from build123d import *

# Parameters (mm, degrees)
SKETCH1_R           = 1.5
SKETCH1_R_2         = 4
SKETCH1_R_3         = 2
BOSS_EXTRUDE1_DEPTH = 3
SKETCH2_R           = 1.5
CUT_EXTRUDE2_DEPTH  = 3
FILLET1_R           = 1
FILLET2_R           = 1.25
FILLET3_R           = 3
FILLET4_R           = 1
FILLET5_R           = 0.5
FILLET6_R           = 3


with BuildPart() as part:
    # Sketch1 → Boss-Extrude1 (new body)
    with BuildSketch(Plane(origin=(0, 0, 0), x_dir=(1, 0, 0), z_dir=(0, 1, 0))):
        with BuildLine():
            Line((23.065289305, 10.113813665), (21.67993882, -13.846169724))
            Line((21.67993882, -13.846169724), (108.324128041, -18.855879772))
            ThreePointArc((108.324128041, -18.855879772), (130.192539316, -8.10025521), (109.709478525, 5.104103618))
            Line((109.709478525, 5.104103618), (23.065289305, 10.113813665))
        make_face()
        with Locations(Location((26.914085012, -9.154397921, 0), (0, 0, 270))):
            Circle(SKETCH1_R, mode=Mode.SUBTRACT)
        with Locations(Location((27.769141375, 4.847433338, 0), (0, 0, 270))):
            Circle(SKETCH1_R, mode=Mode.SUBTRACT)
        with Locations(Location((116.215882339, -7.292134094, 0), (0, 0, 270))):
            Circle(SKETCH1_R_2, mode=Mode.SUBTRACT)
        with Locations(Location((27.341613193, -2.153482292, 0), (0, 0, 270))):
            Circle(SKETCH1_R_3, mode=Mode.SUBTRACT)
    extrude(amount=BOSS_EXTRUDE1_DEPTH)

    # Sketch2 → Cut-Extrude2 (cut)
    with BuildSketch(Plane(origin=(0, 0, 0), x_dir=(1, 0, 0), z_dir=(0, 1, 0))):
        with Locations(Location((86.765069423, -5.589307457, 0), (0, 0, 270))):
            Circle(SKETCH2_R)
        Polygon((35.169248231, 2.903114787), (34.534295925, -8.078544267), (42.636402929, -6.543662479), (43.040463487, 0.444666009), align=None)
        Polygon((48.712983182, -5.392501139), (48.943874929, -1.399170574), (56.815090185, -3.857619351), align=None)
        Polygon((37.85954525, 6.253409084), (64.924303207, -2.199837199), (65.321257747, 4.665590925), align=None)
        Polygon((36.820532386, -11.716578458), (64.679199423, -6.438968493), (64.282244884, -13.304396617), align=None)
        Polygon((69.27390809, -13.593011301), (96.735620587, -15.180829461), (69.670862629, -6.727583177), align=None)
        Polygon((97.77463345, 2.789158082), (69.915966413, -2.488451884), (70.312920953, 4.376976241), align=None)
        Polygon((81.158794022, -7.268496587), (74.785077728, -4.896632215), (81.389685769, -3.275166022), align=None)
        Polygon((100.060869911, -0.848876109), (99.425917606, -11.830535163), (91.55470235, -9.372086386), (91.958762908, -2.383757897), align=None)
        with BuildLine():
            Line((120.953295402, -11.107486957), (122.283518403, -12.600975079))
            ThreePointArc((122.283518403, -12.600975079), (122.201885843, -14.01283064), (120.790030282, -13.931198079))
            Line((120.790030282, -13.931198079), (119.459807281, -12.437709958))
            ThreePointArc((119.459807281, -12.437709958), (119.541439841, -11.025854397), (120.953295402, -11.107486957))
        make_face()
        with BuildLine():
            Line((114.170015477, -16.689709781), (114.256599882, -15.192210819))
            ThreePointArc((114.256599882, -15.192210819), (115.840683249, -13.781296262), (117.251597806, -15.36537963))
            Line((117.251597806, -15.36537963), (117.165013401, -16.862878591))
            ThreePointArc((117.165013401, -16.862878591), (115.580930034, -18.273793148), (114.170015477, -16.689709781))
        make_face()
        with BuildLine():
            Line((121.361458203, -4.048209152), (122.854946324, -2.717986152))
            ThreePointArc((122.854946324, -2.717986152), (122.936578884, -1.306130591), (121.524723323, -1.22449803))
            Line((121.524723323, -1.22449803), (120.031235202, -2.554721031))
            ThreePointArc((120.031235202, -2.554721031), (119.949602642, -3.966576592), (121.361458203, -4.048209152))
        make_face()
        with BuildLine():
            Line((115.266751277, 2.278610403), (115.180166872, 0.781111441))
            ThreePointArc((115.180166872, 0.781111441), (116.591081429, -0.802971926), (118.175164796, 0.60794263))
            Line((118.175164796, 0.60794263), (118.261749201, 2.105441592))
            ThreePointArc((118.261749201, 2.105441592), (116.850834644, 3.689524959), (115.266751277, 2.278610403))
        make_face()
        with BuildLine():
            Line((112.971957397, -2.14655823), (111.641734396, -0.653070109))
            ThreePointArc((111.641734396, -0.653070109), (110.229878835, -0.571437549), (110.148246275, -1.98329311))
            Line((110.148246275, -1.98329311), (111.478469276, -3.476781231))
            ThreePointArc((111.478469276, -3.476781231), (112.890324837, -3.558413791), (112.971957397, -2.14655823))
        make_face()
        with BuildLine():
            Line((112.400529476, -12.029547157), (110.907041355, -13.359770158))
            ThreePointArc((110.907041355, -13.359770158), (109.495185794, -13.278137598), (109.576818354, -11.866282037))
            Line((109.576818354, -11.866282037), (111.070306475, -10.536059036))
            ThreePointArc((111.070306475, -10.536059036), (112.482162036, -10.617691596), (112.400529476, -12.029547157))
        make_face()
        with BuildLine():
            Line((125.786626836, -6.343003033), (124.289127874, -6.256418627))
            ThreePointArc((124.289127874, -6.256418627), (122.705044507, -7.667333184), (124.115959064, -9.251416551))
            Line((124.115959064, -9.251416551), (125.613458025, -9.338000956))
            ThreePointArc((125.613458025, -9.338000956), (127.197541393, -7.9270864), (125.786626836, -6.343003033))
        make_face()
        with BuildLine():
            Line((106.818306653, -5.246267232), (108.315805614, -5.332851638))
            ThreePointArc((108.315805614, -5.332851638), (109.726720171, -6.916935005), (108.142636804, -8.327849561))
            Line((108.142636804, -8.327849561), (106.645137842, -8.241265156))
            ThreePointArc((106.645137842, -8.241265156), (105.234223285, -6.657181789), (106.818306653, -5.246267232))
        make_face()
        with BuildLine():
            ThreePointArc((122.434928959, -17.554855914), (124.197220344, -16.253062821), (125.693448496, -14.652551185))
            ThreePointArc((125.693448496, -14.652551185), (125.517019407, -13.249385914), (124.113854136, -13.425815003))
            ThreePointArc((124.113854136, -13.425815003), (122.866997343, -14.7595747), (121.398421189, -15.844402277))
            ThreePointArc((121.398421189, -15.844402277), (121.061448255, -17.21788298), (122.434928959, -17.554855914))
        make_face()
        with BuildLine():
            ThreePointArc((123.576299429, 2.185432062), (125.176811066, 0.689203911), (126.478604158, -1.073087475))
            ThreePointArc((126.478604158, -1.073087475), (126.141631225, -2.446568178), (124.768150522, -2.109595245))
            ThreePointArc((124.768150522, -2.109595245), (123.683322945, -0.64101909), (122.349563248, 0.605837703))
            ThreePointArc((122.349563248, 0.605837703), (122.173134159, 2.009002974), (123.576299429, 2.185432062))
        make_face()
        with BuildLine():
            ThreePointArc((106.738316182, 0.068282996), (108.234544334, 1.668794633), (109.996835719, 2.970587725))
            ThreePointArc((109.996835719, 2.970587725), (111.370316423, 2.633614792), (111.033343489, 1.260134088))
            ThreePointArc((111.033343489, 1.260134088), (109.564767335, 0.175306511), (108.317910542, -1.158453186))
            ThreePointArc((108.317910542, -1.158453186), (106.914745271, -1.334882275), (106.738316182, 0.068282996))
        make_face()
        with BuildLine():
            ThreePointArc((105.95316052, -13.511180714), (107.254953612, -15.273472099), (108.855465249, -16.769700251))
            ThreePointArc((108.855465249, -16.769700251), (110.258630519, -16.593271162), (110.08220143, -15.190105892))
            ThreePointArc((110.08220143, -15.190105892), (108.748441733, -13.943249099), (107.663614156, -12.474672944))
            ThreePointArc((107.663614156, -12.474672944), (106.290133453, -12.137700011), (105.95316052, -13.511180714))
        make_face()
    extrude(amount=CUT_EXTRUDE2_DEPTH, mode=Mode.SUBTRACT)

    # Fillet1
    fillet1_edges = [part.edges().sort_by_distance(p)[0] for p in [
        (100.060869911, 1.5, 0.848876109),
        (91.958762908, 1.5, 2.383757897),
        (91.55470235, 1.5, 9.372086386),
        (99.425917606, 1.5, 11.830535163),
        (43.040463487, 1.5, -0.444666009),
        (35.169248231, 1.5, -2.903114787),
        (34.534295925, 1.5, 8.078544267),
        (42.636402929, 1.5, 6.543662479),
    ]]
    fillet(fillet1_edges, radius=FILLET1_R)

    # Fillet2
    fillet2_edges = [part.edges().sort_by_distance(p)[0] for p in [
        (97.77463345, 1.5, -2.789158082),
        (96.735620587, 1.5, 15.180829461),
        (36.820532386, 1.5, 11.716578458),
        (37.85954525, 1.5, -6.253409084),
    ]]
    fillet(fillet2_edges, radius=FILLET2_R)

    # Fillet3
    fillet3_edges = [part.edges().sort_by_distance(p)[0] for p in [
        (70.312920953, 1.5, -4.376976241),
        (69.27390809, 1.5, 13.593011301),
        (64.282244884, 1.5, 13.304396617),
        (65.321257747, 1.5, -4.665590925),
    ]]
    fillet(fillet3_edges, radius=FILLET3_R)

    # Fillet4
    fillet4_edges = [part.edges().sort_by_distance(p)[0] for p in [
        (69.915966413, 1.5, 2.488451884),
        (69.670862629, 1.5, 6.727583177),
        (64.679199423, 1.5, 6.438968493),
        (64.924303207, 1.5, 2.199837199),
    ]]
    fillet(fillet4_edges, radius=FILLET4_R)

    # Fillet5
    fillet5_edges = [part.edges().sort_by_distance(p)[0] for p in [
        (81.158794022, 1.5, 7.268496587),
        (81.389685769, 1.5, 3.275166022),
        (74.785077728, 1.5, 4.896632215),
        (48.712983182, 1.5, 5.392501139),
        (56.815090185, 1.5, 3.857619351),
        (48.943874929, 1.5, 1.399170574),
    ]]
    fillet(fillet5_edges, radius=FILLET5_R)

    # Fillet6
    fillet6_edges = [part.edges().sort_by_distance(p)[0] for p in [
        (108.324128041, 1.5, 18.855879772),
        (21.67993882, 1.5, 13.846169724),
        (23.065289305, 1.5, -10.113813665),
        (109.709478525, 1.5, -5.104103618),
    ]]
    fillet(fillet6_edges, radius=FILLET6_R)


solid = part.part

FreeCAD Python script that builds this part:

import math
import FreeCAD as App
import Part
import Sketcher
from FreeCAD import Vector


def edges_at(feature, points):
    """Names of the edges that pass closest to the given points."""
    edges = feature.Shape.Edges
    near = lambda p: min(range(len(edges)), key=lambda i: edges[i].distToShape(Part.Vertex(*p))[0])
    return sorted({f"Edge{near(p) + 1}" for p in points})

doc = App.newDocument("Part")
body = doc.addObject("PartDesign::Body", "Body")

# Sketch on XZ plane
sketch1 = body.newObject("Sketcher::SketchObject", "Sketch")
sketch1.AttachmentSupport = (doc.getObject("XZ_Plane"), [""])
sketch1.MapMode = "FlatFace"
sketch1.addGeometry(Part.LineSegment(Vector(23.065289, -10.113814, 0), Vector(21.679939, 13.84617, 0)), False)
sketch1.addGeometry(Part.LineSegment(Vector(21.679939, 13.84617, 0), Vector(108.324128, 18.85588, 0)), False)
sketch1.addGeometry(Part.ArcOfCircle(Part.Circle(Vector(116.215882, 7.292134, 0), Vector(0, 0, 1), 14), math.radians(-117.693599), math.radians(124.311839)), False)
sketch1.addGeometry(Part.LineSegment(Vector(109.709479, -5.104104, 0), Vector(23.065289, -10.113814, 0)), False)
sketch1.addGeometry(Part.Circle(Vector(26.914085, 9.154398, 0), Vector(0, 0, 1), 1.5), False)
sketch1.addGeometry(Part.Circle(Vector(116.215882, 7.292134, 0), Vector(0, 0, 1), 4), False)
sketch1.addGeometry(Part.Circle(Vector(27.341613, 2.153482, 0), Vector(0, 0, 1), 2), False)
sketch1.addGeometry(Part.Circle(Vector(27.769141, -4.847433, 0), Vector(0, 0, 1), 1.5), False)
sketch1.addConstraint(Sketcher.Constraint("Coincident", 0, 2, 1, 1))
sketch1.addConstraint(Sketcher.Constraint("Coincident", 1, 2, 2, 2))
sketch1.addConstraint(Sketcher.Constraint("Coincident", 2, 1, 3, 1))
sketch1.addConstraint(Sketcher.Constraint("Coincident", 3, 2, 0, 1))
sketch1.addConstraint(Sketcher.Constraint("Coincident", 5, 3, 2, 3))
sketch1.addConstraint(Sketcher.Constraint("Equal", 4, 7))
sketch1.addConstraint(Sketcher.Constraint("Perpendicular", 0, 1))
sketch1.addConstraint(Sketcher.Constraint("Parallel", 1, 3))
sketch1.addConstraint(Sketcher.Constraint("Equal", 1, 3))
sketch1.addConstraint(Sketcher.Constraint("Diameter", 4, 3.0))
sketch1.addConstraint(Sketcher.Constraint("Diameter", 5, 8.0))
sketch1.addConstraint(Sketcher.Constraint("Diameter", 6, 4.0))
sketch1.addConstraint(Sketcher.Constraint("Radius", 2, 14.0))
sketch1.addConstraint(Sketcher.Constraint("Distance", 0, 24.0))
sketch1.addConstraint(Sketcher.Constraint("DistanceX", -1, 1, 7, 3, 27.769141))
sketch1.addConstraint(Sketcher.Constraint("DistanceX", -1, 1, 0, 2, 21.679939))
sketch1.addConstraint(Sketcher.Constraint("DistanceY", -1, 1, 0, 2, 13.84617))
sketch1.addConstraint(Sketcher.Constraint("DistanceX", -1, 1, 1, 2, 108.324128))
sketch1.addConstraint(Sketcher.Constraint("DistanceY", -1, 1, 1, 2, 18.85588))
sketch1.addConstraint(Sketcher.Constraint("DistanceX", 4, 3, 6, 3, 0.427528))
sketch1.addConstraint(Sketcher.Constraint("DistanceX", 6, 3, 2, 3, 88.874269))
sketch1.addConstraint(Sketcher.Constraint("DistanceY", 6, 3, 2, 3, 5.138652))
sketch1.addConstraint(Sketcher.Constraint("DistanceY", 7, 3, 4, 3, 14.001831))
sketch1.addConstraint(Sketcher.Constraint("DistanceY", 4, 3, 0, 2, 4.691772))
pad1 = body.newObject("PartDesign::Pad", "Pad")
pad1.Profile = sketch1
pad1.Length = 3
pad1.Reversed = True

# Sketch on XZ plane
sketch2 = body.newObject("Sketcher::SketchObject", "Sketch001")
sketch2.AttachmentSupport = (doc.getObject("XZ_Plane"), [""])
sketch2.MapMode = "FlatFace"
sketch2.addGeometry(Part.Circle(Vector(86.765069, 5.589307, 0), Vector(0, 0, 1), 1.5), False)
sketch2.addGeometry(Part.LineSegment(Vector(35.169248, -2.903115, 0), Vector(34.534296, 8.078544, 0)), False)
sketch2.addGeometry(Part.LineSegment(Vector(34.534296, 8.078544, 0), Vector(42.636403, 6.543662, 0)), False)
sketch2.addGeometry(Part.LineSegment(Vector(42.636403, 6.543662, 0), Vector(43.040463, -0.444666, 0)), False)
sketch2.addGeometry(Part.LineSegment(Vector(43.040463, -0.444666, 0), Vector(35.169248, -2.903115, 0)), False)
sketch2.addGeometry(Part.LineSegment(Vector(48.943875, 1.399171, 0), Vector(48.712983, 5.392501, 0)), False)
sketch2.addGeometry(Part.LineSegment(Vector(48.712983, 5.392501, 0), Vector(56.81509, 3.857619, 0)), False)
sketch2.addGeometry(Part.LineSegment(Vector(56.81509, 3.857619, 0), Vector(48.943875, 1.399171, 0)), False)
sketch2.addGeometry(Part.LineSegment(Vector(37.859545, -6.253409, 0), Vector(64.924303, 2.199837, 0)), False)
sketch2.addGeometry(Part.LineSegment(Vector(64.924303, 2.199837, 0), Vector(65.321258, -4.665591, 0)), False)
sketch2.addGeometry(Part.LineSegment(Vector(65.321258, -4.665591, 0), Vector(37.859545, -6.253409, 0)), False)
sketch2.addGeometry(Part.LineSegment(Vector(64.679199, 6.438968, 0), Vector(36.820532, 11.716578, 0)), False)
sketch2.addGeometry(Part.LineSegment(Vector(36.820532, 11.716578, 0), Vector(64.282245, 13.304397, 0)), False)
sketch2.addGeometry(Part.LineSegment(Vector(64.282245, 13.304397, 0), Vector(64.679199, 6.438968, 0)), False)
sketch2.addGeometry(Part.LineSegment(Vector(69.273908, 13.593011, 0), Vector(96.735621, 15.180829, 0)), False)
sketch2.addGeometry(Part.LineSegment(Vector(96.735621, 15.180829, 0), Vector(69.670863, 6.727583, 0)), False)
sketch2.addGeometry(Part.LineSegment(Vector(69.670863, 6.727583, 0), Vector(69.273908, 13.593011, 0)), False)
sketch2.addGeometry(Part.LineSegment(Vector(69.915966, 2.488452, 0), Vector(97.774633, -2.789158, 0)), False)
sketch2.addGeometry(Part.LineSegment(Vector(97.774633, -2.789158, 0), Vector(70.312921, -4.376976, 0)), False)
sketch2.addGeometry(Part.LineSegment(Vector(70.312921, -4.376976, 0), Vector(69.915966, 2.488452, 0)), False)
sketch2.addGeometry(Part.LineSegment(Vector(74.785078, 4.896632, 0), Vector(81.158794, 7.268497, 0)), False)
sketch2.addGeometry(Part.LineSegment(Vector(81.158794, 7.268497, 0), Vector(81.389686, 3.275166, 0)), False)
sketch2.addGeometry(Part.LineSegment(Vector(81.389686, 3.275166, 0), Vector(74.785078, 4.896632, 0)), False)
sketch2.addGeometry(Part.LineSegment(Vector(99.425918, 11.830535, 0), Vector(100.06087, 0.848876, 0)), False)
sketch2.addGeometry(Part.LineSegment(Vector(100.06087, 0.848876, 0), Vector(91.958763, 2.383758, 0)), False)
sketch2.addGeometry(Part.LineSegment(Vector(91.958763, 2.383758, 0), Vector(91.554702, 9.372086, 0)), False)
sketch2.addGeometry(Part.LineSegment(Vector(91.554702, 9.372086, 0), Vector(99.425918, 11.830535, 0)), False)
sketch2.addGeometry(Part.LineSegment(Vector(122.283518, 12.600975, 0), Vector(120.953295, 11.107487, 0)), False)
sketch2.addGeometry(Part.ArcOfCircle(Part.Circle(Vector(120.206551, 11.772598, 0), Vector(0, 0, 1), 1), math.radians(138.30912), math.radians(318.30912)), False)
sketch2.addGeometry(Part.LineSegment(Vector(119.459807, 12.43771, 0), Vector(120.79003, 13.931198, 0)), False)
sketch2.addGeometry(Part.ArcOfCircle(Part.Circle(Vector(121.536774, 13.266087, 0), Vector(0, 0, 1), 1), math.radians(-41.69088), math.radians(138.30912)), False)
sketch2.addGeometry(Part.LineSegment(Vector(114.2566, 15.192211, 0), Vector(114.170015, 16.68971, 0)), False)
sketch2.addGeometry(Part.ArcOfCircle(Part.Circle(Vector(115.667514, 16.776294, 0), Vector(0, 0, 1), 1.5), math.radians(3.30912), math.radians(183.30912)), False)
sketch2.addGeometry(Part.LineSegment(Vector(117.165013, 16.862879, 0), Vector(117.251598, 15.36538, 0)), False)
sketch2.addGeometry(Part.ArcOfCircle(Part.Circle(Vector(115.754099, 15.278795, 0), Vector(0, 0, 1), 1.5), math.radians(-176.69088), math.radians(3.30912)), False)
sketch2.addGeometry(Part.LineSegment(Vector(121.361458, 4.048209, 0), Vector(122.854946, 2.717986, 0)), False)
sketch2.addGeometry(Part.ArcOfCircle(Part.Circle(Vector(122.189835, 1.971242, 0), Vector(0, 0, 1), 1), math.radians(-131.69088), math.radians(48.30912)), False)
sketch2.addGeometry(Part.LineSegment(Vector(121.524723, 1.224498, 0), Vector(120.031235, 2.554721, 0)), False)
sketch2.addGeometry(Part.ArcOfCircle(Part.Circle(Vector(120.696347, 3.301465, 0), Vector(0, 0, 1), 1), math.radians(48.30912), math.radians(228.30912)), False)
sketch2.addGeometry(Part.LineSegment(Vector(115.266751, -2.27861, 0), Vector(115.180167, -0.781111, 0)), False)
sketch2.addGeometry(Part.ArcOfCircle(Part.Circle(Vector(116.677666, -0.694527, 0), Vector(0, 0, 1), 1.5), math.radians(3.30912), math.radians(183.30912)), False)
sketch2.addGeometry(Part.LineSegment(Vector(118.175165, -0.607943, 0), Vector(118.261749, -2.105442, 0)), False)
sketch2.addGeometry(Part.ArcOfCircle(Part.Circle(Vector(116.76425, -2.192026, 0), Vector(0, 0, 1), 1.5), math.radians(-176.69088), math.radians(3.30912)), False)
sketch2.addGeometry(Part.LineSegment(Vector(112.971957, 2.146558, 0), Vector(111.641734, 0.65307, 0)), False)
sketch2.addGeometry(Part.ArcOfCircle(Part.Circle(Vector(110.89499, 1.318182, 0), Vector(0, 0, 1), 1), math.radians(138.30912), math.radians(318.30912)), False)
sketch2.addGeometry(Part.LineSegment(Vector(110.148246, 1.983293, 0), Vector(111.478469, 3.476781, 0)), False)
sketch2.addGeometry(Part.ArcOfCircle(Part.Circle(Vector(112.225213, 2.81167, 0), Vector(0, 0, 1), 1), math.radians(-41.69088), math.radians(138.30912)), False)
sketch2.addGeometry(Part.LineSegment(Vector(110.907041, 13.35977, 0), Vector(112.400529, 12.029547, 0)), False)
sketch2.addGeometry(Part.ArcOfCircle(Part.Circle(Vector(111.735418, 11.282803, 0), Vector(0, 0, 1), 1), math.radians(-131.69088), math.radians(48.30912)), False)
sketch2.addGeometry(Part.LineSegment(Vector(111.070306, 10.536059, 0), Vector(109.576818, 11.866282, 0)), False)
sketch2.addGeometry(Part.ArcOfCircle(Part.Circle(Vector(110.24193, 12.613026, 0), Vector(0, 0, 1), 1), math.radians(48.30912), math.radians(228.30912)), False)
sketch2.addGeometry(Part.LineSegment(Vector(125.786627, 6.343003, 0), Vector(124.289128, 6.256419, 0)), False)
sketch2.addGeometry(Part.ArcOfCircle(Part.Circle(Vector(124.202543, 7.753918, 0), Vector(0, 0, 1), 1.5), math.radians(93.30912), math.radians(273.30912)), False)
sketch2.addGeometry(Part.LineSegment(Vector(124.115959, 9.251417, 0), Vector(125.613458, 9.338001, 0)), False)
sketch2.addGeometry(Part.ArcOfCircle(Part.Circle(Vector(125.700042, 7.840502, 0), Vector(0, 0, 1), 1.5), math.radians(-86.69088), math.radians(93.30912)), False)
sketch2.addGeometry(Part.LineSegment(Vector(108.315806, 5.332852, 0), Vector(106.818307, 5.246267, 0)), False)
sketch2.addGeometry(Part.ArcOfCircle(Part.Circle(Vector(106.731722, 6.743766, 0), Vector(0, 0, 1), 1.5), math.radians(93.30912), math.radians(273.30912)), False)
sketch2.addGeometry(Part.LineSegment(Vector(106.645138, 8.241265, 0), Vector(108.142637, 8.32785, 0)), False)
sketch2.addGeometry(Part.ArcOfCircle(Part.Circle(Vector(108.229221, 6.830351, 0), Vector(0, 0, 1), 1.5), math.radians(-86.69088), math.radians(93.30912)), False)
sketch2.addGeometry(Part.ArcOfCircle(Part.Circle(Vector(116.215882, 7.292134, 0), Vector(0, 0, 1), 12), math.radians(37.833438), math.radians(58.784802)), False)
sketch2.addGeometry(Part.ArcOfCircle(Part.Circle(Vector(124.903651, 14.039183, 0), Vector(0, 0, 1), 1), math.radians(-142.166562), math.radians(37.833438)), False)
sketch2.addGeometry(Part.ArcOfCircle(Part.Circle(Vector(116.215882, 7.292134, 0), Vector(0, 0, 1), 10), math.radians(37.833438), math.radians(58.784802)), False)
sketch2.addGeometry(Part.ArcOfCircle(Part.Circle(Vector(121.916675, 16.699629, 0), Vector(0, 0, 1), 1), math.radians(58.784802), math.radians(238.784802)), False)
sketch2.addGeometry(Part.ArcOfCircle(Part.Circle(Vector(116.215882, 7.292134, 0), Vector(0, 0, 1), 12), math.radians(-52.166562), math.radians(-31.215198)), False)
sketch2.addGeometry(Part.ArcOfCircle(Part.Circle(Vector(122.962931, -1.395635, 0), Vector(0, 0, 1), 1), math.radians(127.833438), math.radians(307.833438)), False)
sketch2.addGeometry(Part.ArcOfCircle(Part.Circle(Vector(116.215882, 7.292134, 0), Vector(0, 0, 1), 10), math.radians(-52.166562), math.radians(-31.215198)), False)
sketch2.addGeometry(Part.ArcOfCircle(Part.Circle(Vector(125.623377, 1.591341, 0), Vector(0, 0, 1), 1), math.radians(-31.215198), math.radians(148.784802)), False)
sketch2.addGeometry(Part.ArcOfCircle(Part.Circle(Vector(116.215882, 7.292134, 0), Vector(0, 0, 1), 12), math.radians(-142.166562), math.radians(-121.215198)), False)
sketch2.addGeometry(Part.ArcOfCircle(Part.Circle(Vector(107.528113, 0.545085, 0), Vector(0, 0, 1), 1), math.radians(37.833438), math.radians(217.833438)), False)
sketch2.addGeometry(Part.ArcOfCircle(Part.Circle(Vector(116.215882, 7.292134, 0), Vector(0, 0, 1), 10), math.radians(-142.166562), math.radians(-121.215198)), False)
sketch2.addGeometry(Part.ArcOfCircle(Part.Circle(Vector(110.51509, -2.115361, 0), Vector(0, 0, 1), 1), math.radians(-121.215198), math.radians(58.784802)), False)
sketch2.addGeometry(Part.ArcOfCircle(Part.Circle(Vector(116.215882, 7.292134, 0), Vector(0, 0, 1), 12), math.radians(127.833438), math.radians(148.784802)), False)
sketch2.addGeometry(Part.ArcOfCircle(Part.Circle(Vector(109.468833, 15.979903, 0), Vector(0, 0, 1), 1), math.radians(-52.166562), math.radians(127.833438)), False)
sketch2.addGeometry(Part.ArcOfCircle(Part.Circle(Vector(116.215882, 7.292134, 0), Vector(0, 0, 1), 10), math.radians(127.833438), math.radians(148.784802)), False)
sketch2.addGeometry(Part.ArcOfCircle(Part.Circle(Vector(106.808387, 12.992927, 0), Vector(0, 0, 1), 1), math.radians(148.784802), math.radians(328.784802)), False)
sketch2.addConstraint(Sketcher.Constraint("Coincident", 1, 2, 2, 1))
sketch2.addConstraint(Sketcher.Constraint("Coincident", 2, 2, 3, 1))
sketch2.addConstraint(Sketcher.Constraint("Coincident", 3, 2, 4, 1))
sketch2.addConstraint(Sketcher.Constraint("Coincident", 4, 2, 1, 1))
sketch2.addConstraint(Sketcher.Constraint("Coincident", 5, 2, 6, 1))
sketch2.addConstraint(Sketcher.Constraint("Coincident", 6, 2, 7, 1))
sketch2.addConstraint(Sketcher.Constraint("Coincident", 7, 2, 5, 1))
sketch2.addConstraint(Sketcher.Constraint("Coincident", 8, 2, 9, 1))
sketch2.addConstraint(Sketcher.Constraint("Coincident", 9, 2, 10, 1))
sketch2.addConstraint(Sketcher.Constraint("Coincident", 10, 2, 8, 1))
sketch2.addConstraint(Sketcher.Constraint("Coincident", 11, 2, 12, 1))
sketch2.addConstraint(Sketcher.Constraint("Coincident", 12, 2, 13, 1))
sketch2.addConstraint(Sketcher.Constraint("Coincident", 13, 2, 11, 1))
sketch2.addConstraint(Sketcher.Constraint("Coincident", 14, 2, 15, 1))
sketch2.addConstraint(Sketcher.Constraint("Coincident", 15, 2, 16, 1))
sketch2.addConstraint(Sketcher.Constraint("Coincident", 16, 2, 14, 1))
sketch2.addConstraint(Sketcher.Constraint("Coincident", 17, 2, 18, 1))
sketch2.addConstraint(Sketcher.Constraint("Coincident", 18, 2, 19, 1))
sketch2.addConstraint(Sketcher.Constraint("Coincident", 19, 2, 17, 1))
sketch2.addConstraint(Sketcher.Constraint("Coincident", 20, 2, 21, 1))
sketch2.addConstraint(Sketcher.Constraint("Coincident", 21, 2, 22, 1))
sketch2.addConstraint(Sketcher.Constraint("Coincident", 22, 2, 20, 1))
sketch2.addConstraint(Sketcher.Constraint("Coincident", 23, 2, 24, 1))
sketch2.addConstraint(Sketcher.Constraint("Coincident", 24, 2, 25, 1))
sketch2.addConstraint(Sketcher.Constraint("Coincident", 25, 2, 26, 1))
sketch2.addConstraint(Sketcher.Constraint("Coincident", 26, 2, 23, 1))
sketch2.addConstraint(Sketcher.Constraint("Tangent", 27, 2, 28, 2))
sketch2.addConstraint(Sketcher.Constraint("Tangent", 28, 1, 29, 1))
sketch2.addConstraint(Sketcher.Constraint("Tangent", 29, 2, 30, 2))
sketch2.addConstraint(Sketcher.Constraint("Tangent", 30, 1, 27, 1))
sketch2.addConstraint(Sketcher.Constraint("Tangent", 31, 2, 32, 2))
sketch2.addConstraint(Sketcher.Constraint("Tangent", 32, 1, 33, 1))
sketch2.addConstraint(Sketcher.Constraint("Tangent", 33, 2, 34, 2))
sketch2.addConstraint(Sketcher.Constraint("Tangent", 34, 1, 31, 1))
sketch2.addConstraint(Sketcher.Constraint("Tangent", 35, 2, 36, 2))
sketch2.addConstraint(Sketcher.Constraint("Tangent", 36, 1, 37, 1))
sketch2.addConstraint(Sketcher.Constraint("Tangent", 37, 2, 38, 2))
sketch2.addConstraint(Sketcher.Constraint("Tangent", 38, 1, 35, 1))
sketch2.addConstraint(Sketcher.Constraint("Tangent", 39, 2, 40, 2))
sketch2.addConstraint(Sketcher.Constraint("Tangent", 40, 1, 41, 1))
sketch2.addConstraint(Sketcher.Constraint("Tangent", 41, 2, 42, 2))
sketch2.addConstraint(Sketcher.Constraint("Tangent", 42, 1, 39, 1))
sketch2.addConstraint(Sketcher.Constraint("Tangent", 43, 2, 44, 2))
sketch2.addConstraint(Sketcher.Constraint("Tangent", 44, 1, 45, 1))
sketch2.addConstraint(Sketcher.Constraint("Tangent", 45, 2, 46, 2))
sketch2.addConstraint(Sketcher.Constraint("Tangent", 46, 1, 43, 1))
sketch2.addConstraint(Sketcher.Constraint("Tangent", 47, 2, 48, 2))
sketch2.addConstraint(Sketcher.Constraint("Tangent", 48, 1, 49, 1))
sketch2.addConstraint(Sketcher.Constraint("Tangent", 49, 2, 50, 2))
sketch2.addConstraint(Sketcher.Constraint("Tangent", 50, 1, 47, 1))
sketch2.addConstraint(Sketcher.Constraint("Tangent", 51, 2, 52, 2))
sketch2.addConstraint(Sketcher.Constraint("Tangent", 52, 1, 53, 1))
sketch2.addConstraint(Sketcher.Constraint("Tangent", 53, 2, 54, 2))
sketch2.addConstraint(Sketcher.Constraint("Tangent", 54, 1, 51, 1))
sketch2.addConstraint(Sketcher.Constraint("Tangent", 55, 2, 56, 2))
sketch2.addConstraint(Sketcher.Constraint("Tangent", 56, 1, 57, 1))
sketch2.addConstraint(Sketcher.Constraint("Tangent", 57, 2, 58, 2))
sketch2.addConstraint(Sketcher.Constraint("Tangent", 58, 1, 55, 1))
sketch2.addConstraint(Sketcher.Constraint("Tangent", 59, 1, 60, 2))
sketch2.addConstraint(Sketcher.Constraint("Tangent", 60, 1, 61, 1))
sketch2.addConstraint(Sketcher.Constraint("Tangent", 61, 2, 62, 2))
sketch2.addConstraint(Sketcher.Constraint("Tangent", 62, 1, 59, 2))
sketch2.addConstraint(Sketcher.Constraint("Tangent", 63, 1, 64, 2))
sketch2.addConstraint(Sketcher.Constraint("Tangent", 64, 1, 65, 1))
sketch2.addConstraint(Sketcher.Constraint("Tangent", 65, 2, 66, 2))
sketch2.addConstraint(Sketcher.Constraint("Tangent", 66, 1, 63, 2))
sketch2.addConstraint(Sketcher.Constraint("Tangent", 67, 1, 68, 2))
sketch2.addConstraint(Sketcher.Constraint("Tangent", 68, 1, 69, 1))
sketch2.addConstraint(Sketcher.Constraint("Tangent", 69, 2, 70, 2))
sketch2.addConstraint(Sketcher.Constraint("Tangent", 70, 1, 67, 2))
sketch2.addConstraint(Sketcher.Constraint("Tangent", 71, 1, 72, 2))
sketch2.addConstraint(Sketcher.Constraint("Tangent", 72, 1, 73, 1))
sketch2.addConstraint(Sketcher.Constraint("Tangent", 73, 2, 74, 2))
sketch2.addConstraint(Sketcher.Constraint("Tangent", 74, 1, 71, 2))
sketch2.addConstraint(Sketcher.Constraint("Coincident", 61, 3, 59, 3))
sketch2.addConstraint(Sketcher.Constraint("Coincident", 63, 3, 59, 3))
sketch2.addConstraint(Sketcher.Constraint("Coincident", 65, 3, 59, 3))
sketch2.addConstraint(Sketcher.Constraint("Coincident", 67, 3, 59, 3))
sketch2.addConstraint(Sketcher.Constraint("Coincident", 69, 3, 59, 3))
sketch2.addConstraint(Sketcher.Constraint("Coincident", 71, 3, 59, 3))
sketch2.addConstraint(Sketcher.Constraint("Coincident", 73, 3, 59, 3))
sketch2.addConstraint(Sketcher.Constraint("Equal", 28, 30))
sketch2.addConstraint(Sketcher.Constraint("Equal", 0, 32))
sketch2.addConstraint(Sketcher.Constraint("Equal", 32, 34))
sketch2.addConstraint(Sketcher.Constraint("Equal", 30, 36))
sketch2.addConstraint(Sketcher.Constraint("Equal", 36, 38))
sketch2.addConstraint(Sketcher.Constraint("Equal", 34, 40))
sketch2.addConstraint(Sketcher.Constraint("Equal", 40, 42))
sketch2.addConstraint(Sketcher.Constraint("Equal", 38, 44))
sketch2.addConstraint(Sketcher.Constraint("Equal", 44, 46))
sketch2.addConstraint(Sketcher.Constraint("Equal", 46, 48))
sketch2.addConstraint(Sketcher.Constraint("Equal", 48, 50))
sketch2.addConstraint(Sketcher.Constraint("Equal", 42, 52))
sketch2.addConstraint(Sketcher.Constraint("Equal", 52, 54))
sketch2.addConstraint(Sketcher.Constraint("Equal", 54, 56))
sketch2.addConstraint(Sketcher.Constraint("Equal", 56, 58))
sketch2.addConstraint(Sketcher.Constraint("Equal", 50, 60))
sketch2.addConstraint(Sketcher.Constraint("Equal", 59, 63))
sketch2.addConstraint(Sketcher.Constraint("Equal", 62, 64))
sketch2.addConstraint(Sketcher.Constraint("Equal", 63, 67))
sketch2.addConstraint(Sketcher.Constraint("Equal", 66, 68))
sketch2.addConstraint(Sketcher.Constraint("Equal", 67, 71))
sketch2.addConstraint(Sketcher.Constraint("Equal", 70, 72))
sketch2.addConstraint(Sketcher.Constraint("Parallel", 1, 3))
sketch2.addConstraint(Sketcher.Constraint("Parallel", 3, 5))
sketch2.addConstraint(Sketcher.Constraint("Parallel", 2, 6))
sketch2.addConstraint(Sketcher.Constraint("Parallel", 4, 7))
sketch2.addConstraint(Sketcher.Constraint("Parallel", 7, 8))
sketch2.addConstraint(Sketcher.Constraint("Parallel", 5, 9))
sketch2.addConstraint(Sketcher.Constraint("Perpendicular", 9, 10))
sketch2.addConstraint(Sketcher.Constraint("Parallel", 6, 11))
sketch2.addConstraint(Sketcher.Constraint("Parallel", 10, 12))
sketch2.addConstraint(Sketcher.Constraint("Perpendicular", 12, 13))
sketch2.addConstraint(Sketcher.Constraint("Perpendicular", 13, 14))
sketch2.addConstraint(Sketcher.Constraint("Parallel", 8, 15))
sketch2.addConstraint(Sketcher.Constraint("Perpendicular", 14, 16))
sketch2.addConstraint(Sketcher.Constraint("Parallel", 11, 17))
sketch2.addConstraint(Sketcher.Constraint("Perpendicular", 16, 18))
sketch2.addConstraint(Sketcher.Constraint("Perpendicular", 18, 19))
sketch2.addConstraint(Sketcher.Constraint("Parallel", 19, 21))
sketch2.addConstraint(Sketcher.Constraint("Parallel", 21, 23))
sketch2.addConstraint(Sketcher.Constraint("Parallel", 17, 24))
sketch2.addConstraint(Sketcher.Constraint("Parallel", 23, 25))
sketch2.addConstraint(Sketcher.Constraint("Parallel", 15, 26))
sketch2.addConstraint(Sketcher.Constraint("Parallel", 25, 31))
sketch2.addConstraint(Sketcher.Constraint("Perpendicular", 29, 35))
sketch2.addConstraint(Sketcher.Constraint("Parallel", 33, 39))
sketch2.addConstraint(Sketcher.Constraint("Perpendicular", 37, 43))
sketch2.addConstraint(Sketcher.Constraint("Perpendicular", 45, 47))
sketch2.addConstraint(Sketcher.Constraint("Perpendicular", 41, 51))
sketch2.addConstraint(Sketcher.Constraint("Parallel", 53, 55))
sketch2.addConstraint(Sketcher.Constraint("Equal", 2, 4))
sketch2.addConstraint(Sketcher.Constraint("Equal", 4, 6))
sketch2.addConstraint(Sketcher.Constraint("Equal", 8, 11))
sketch2.addConstraint(Sketcher.Constraint("Equal", 12, 14))
sketch2.addConstraint(Sketcher.Constraint("Equal", 15, 17))
sketch2.addConstraint(Sketcher.Constraint("Equal", 5, 21))
sketch2.addConstraint(Sketcher.Constraint("Equal", 20, 22))
sketch2.addConstraint(Sketcher.Constraint("Equal", 1, 23))
sketch2.addConstraint(Sketcher.Constraint("Equal", 7, 24))
sketch2.addConstraint(Sketcher.Constraint("Equal", 29, 35))
sketch2.addConstraint(Sketcher.Constraint("Equal", 33, 39))
sketch2.addConstraint(Sketcher.Constraint("Equal", 37, 43))
sketch2.addConstraint(Sketcher.Constraint("Equal", 45, 47))
sketch2.addConstraint(Sketcher.Constraint("Equal", 41, 51))
sketch2.addConstraint(Sketcher.Constraint("Equal", 53, 55))
sketch2.addConstraint(Sketcher.Constraint("Diameter", 0, 3.0))
sketch2.addConstraint(Sketcher.Constraint("Radius", 28, 1.0))
sketch2.addConstraint(Sketcher.Constraint("Radius", 59, 12.0))
sketch2.addConstraint(Sketcher.Constraint("Distance", 1, 11.0))
sketch2.addConstraint(Sketcher.Constraint("Distance", 3, 7.0))
sketch2.addConstraint(Sketcher.Constraint("Distance", 27, 2.0))
sketch2.addConstraint(Sketcher.Constraint("Distance", 31, 1.5))
sketch2.addConstraint(Sketcher.Constraint("DistanceY", -1, 1, 53, 2, 9.338001))
sketch2.addConstraint(Sketcher.Constraint("DistanceY", -1, 1, 28, 3, 11.772598))
sketch2.addConstraint(Sketcher.Constraint("DistanceX", -1, 1, 34, 3, 115.754099))
sketch2.addConstraint(Sketcher.Constraint("DistanceY", -1, 1, 5, 2, 5.392501))
sketch2.addConstraint(Sketcher.Constraint("DistanceX", -1, 1, 13, 2, 64.679199))
sketch2.addConstraint(Sketcher.Constraint("DistanceY", -1, 1, 29, 2, 13.931198))
sketch2.addConstraint(Sketcher.Constraint("DistanceY", -1, 1, 36, 1, 1.224498))
sketch2.addConstraint(Sketcher.Constraint("DistanceX", -1, 1, 63, 1, 123.576299))
sketch2.addConstraint(Sketcher.Constraint("DistanceY", -1, 1, 71, 1, 16.7697))
sketch2.addConstraint(Sketcher.Constraint("DistanceX", -1, 1, 72, 1, 110.082201))
sketch2.addConstraint(Sketcher.Constraint("Distance", 2, 8.246211))
sketch2.addConstraint(Sketcher.Constraint("Distance", 8, 28.354162))
sketch2.addConstraint(Sketcher.Constraint("DistanceX", -1, 1, 0, 3, 86.765069))
sketch2.addConstraint(Sketcher.Constraint("DistanceX", -1, 1, 28, 3, 120.206551))
sketch2.addConstraint(Sketcher.Constraint("DistanceX", -1, 1, 42, 3, 116.76425))
sketch2.addConstraint(Sketcher.Constraint("DistanceX", -1, 1, 44, 3, 110.89499))
sketch2.addConstraint(Sketcher.Constraint("DistanceY", -1, 1, 44, 3, 1.318182))
sketch2.addConstraint(Sketcher.Constraint("DistanceX", -1, 1, 50, 3, 110.24193))
sketch2.addConstraint(Sketcher.Constraint("DistanceX", -1, 1, 58, 3, 108.229221))
sketch2.addConstraint(Sketcher.Constraint("DistanceY", -1, 1, 58, 3, 6.830351))
sketch2.addConstraint(Sketcher.Constraint("DistanceX", -1, 1, 60, 3, 124.903651))
sketch2.addConstraint(Sketcher.Constraint("DistanceY", -1, 1, 62, 3, 16.699629))
sketch2.addConstraint(Sketcher.Constraint("DistanceX", -1, 1, 64, 3, 122.962931))
sketch2.addConstraint(Sketcher.Constraint("DistanceY", -1, 1, 66, 3, 1.591341))
sketch2.addConstraint(Sketcher.Constraint("DistanceX", -1, 1, 70, 3, 110.51509))
sketch2.addConstraint(Sketcher.Constraint("DistanceX", -1, 1, 4, 2, 35.169248))
sketch2.addConstraint(Sketcher.Constraint("DistanceX", -1, 1, 6, 2, 56.81509))
sketch2.addConstraint(Sketcher.Constraint("DistanceY", -1, 1, 6, 2, 3.857619))
sketch2.addConstraint(Sketcher.Constraint("DistanceY", 9, 2, -1, 1, 4.665591))
sketch2.addConstraint(Sketcher.Constraint("DistanceY", -1, 1, 11, 2, 11.716578))
sketch2.addConstraint(Sketcher.Constraint("DistanceX", -1, 1, 14, 2, 96.735621))
sketch2.addConstraint(Sketcher.Constraint("DistanceY", -1, 1, 14, 2, 15.180829))
sketch2.addConstraint(Sketcher.Constraint("DistanceY", 17, 2, -1, 1, 2.789158))
sketch2.addConstraint(Sketcher.Constraint("DistanceX", -1, 1, 18, 2, 70.312921))
sketch2.addConstraint(Sketcher.Constraint("DistanceX", -1, 1, 23, 2, 100.06087))
sketch2.addConstraint(Sketcher.Constraint("DistanceY", -1, 1, 31, 2, 16.68971))
sketch2.addConstraint(Sketcher.Constraint("DistanceX", -1, 1, 38, 1, 121.361458))
sketch2.addConstraint(Sketcher.Constraint("DistanceY", 39, 2, -1, 1, 0.781111))
sketch2.addConstraint(Sketcher.Constraint("DistanceY", -1, 1, 48, 1, 10.536059))
sketch2.addConstraint(Sketcher.Constraint("DistanceX", -1, 1, 52, 1, 124.115959))
sketch2.addConstraint(Sketcher.Constraint("DistanceX", -1, 1, 68, 1, 108.317911))
sketch2.addConstraint(Sketcher.Constraint("DistanceX", -1, 1, 74, 1, 105.953161))
sketch2.addConstraint(Sketcher.Constraint("Distance", 20, 6.800735))
sketch2.addConstraint(Sketcher.Constraint("DistanceY", -1, 1, 0, 3, 5.589307))
sketch2.addConstraint(Sketcher.Constraint("DistanceY", -1, 1, 1, 2, 8.078544))
sketch2.addConstraint(Sketcher.Constraint("DistanceX", -1, 1, 8, 2, 64.924303))
sketch2.addConstraint(Sketcher.Constraint("DistanceX", -1, 1, 20, 2, 81.158794))
sketch2.addConstraint(Sketcher.Constraint("DistanceY", -1, 1, 20, 2, 7.268497))
sketch2.addConstraint(Sketcher.Constraint("DistanceY", -1, 1, 23, 2, 0.848876))
pocket1 = body.newObject("PartDesign::Pocket", "Pocket")
pocket1.Profile = sketch2
pocket1.Length = 3
doc.recompute()

fillet = body.newObject("PartDesign::Fillet", "Fillet")
fillet.Base = (pocket1, edges_at(pocket1, [
    (100.061, 1.5, 0.849),
    (91.959, 1.5, 2.384),
    (91.555, 1.5, 9.372),
    (99.426, 1.5, 11.831),
    (43.04, 1.5, -0.445),
    (35.169, 1.5, -2.903),
    (34.534, 1.5, 8.079),
    (42.636, 1.5, 6.544),
]))
fillet.Radius = 1
doc.recompute()

fillet2 = body.newObject("PartDesign::Fillet", "Fillet001")
fillet2.Base = (fillet, edges_at(fillet, [
    (97.775, 1.5, -2.789),
    (96.736, 1.5, 15.181),
    (36.821, 1.5, 11.717),
    (37.86, 1.5, -6.253),
]))
fillet2.Radius = 1.25
doc.recompute()

fillet3 = body.newObject("PartDesign::Fillet", "Fillet002")
fillet3.Base = (fillet2, edges_at(fillet2, [
    (70.313, 1.5, -4.377),
    (69.274, 1.5, 13.593),
    (64.282, 1.5, 13.304),
    (65.321, 1.5, -4.666),
]))
fillet3.Radius = 3
doc.recompute()

fillet4 = body.newObject("PartDesign::Fillet", "Fillet003")
fillet4.Base = (fillet3, edges_at(fillet3, [
    (69.916, 1.5, 2.488),
    (69.671, 1.5, 6.728),
    (64.679, 1.5, 6.439),
    (64.924, 1.5, 2.2),
]))
fillet4.Radius = 1
doc.recompute()

fillet5 = body.newObject("PartDesign::Fillet", "Fillet004")
fillet5.Base = (fillet4, edges_at(fillet4, [
    (81.159, 1.5, 7.268),
    (81.39, 1.5, 3.275),
    (74.785, 1.5, 4.897),
    (48.713, 1.5, 5.393),
    (56.815, 1.5, 3.858),
    (48.944, 1.5, 1.399),
]))
fillet5.Radius = 0.5
doc.recompute()

fillet6 = body.newObject("PartDesign::Fillet", "Fillet005")
fillet6.Base = (fillet5, edges_at(fillet5, [
    (108.324, 1.5, 18.856),
    (21.68, 1.5, 13.846),
    (23.065, 1.5, -10.114),
    (109.709, 1.5, -5.104),
]))
fillet6.Radius = 3

doc.recompute()
